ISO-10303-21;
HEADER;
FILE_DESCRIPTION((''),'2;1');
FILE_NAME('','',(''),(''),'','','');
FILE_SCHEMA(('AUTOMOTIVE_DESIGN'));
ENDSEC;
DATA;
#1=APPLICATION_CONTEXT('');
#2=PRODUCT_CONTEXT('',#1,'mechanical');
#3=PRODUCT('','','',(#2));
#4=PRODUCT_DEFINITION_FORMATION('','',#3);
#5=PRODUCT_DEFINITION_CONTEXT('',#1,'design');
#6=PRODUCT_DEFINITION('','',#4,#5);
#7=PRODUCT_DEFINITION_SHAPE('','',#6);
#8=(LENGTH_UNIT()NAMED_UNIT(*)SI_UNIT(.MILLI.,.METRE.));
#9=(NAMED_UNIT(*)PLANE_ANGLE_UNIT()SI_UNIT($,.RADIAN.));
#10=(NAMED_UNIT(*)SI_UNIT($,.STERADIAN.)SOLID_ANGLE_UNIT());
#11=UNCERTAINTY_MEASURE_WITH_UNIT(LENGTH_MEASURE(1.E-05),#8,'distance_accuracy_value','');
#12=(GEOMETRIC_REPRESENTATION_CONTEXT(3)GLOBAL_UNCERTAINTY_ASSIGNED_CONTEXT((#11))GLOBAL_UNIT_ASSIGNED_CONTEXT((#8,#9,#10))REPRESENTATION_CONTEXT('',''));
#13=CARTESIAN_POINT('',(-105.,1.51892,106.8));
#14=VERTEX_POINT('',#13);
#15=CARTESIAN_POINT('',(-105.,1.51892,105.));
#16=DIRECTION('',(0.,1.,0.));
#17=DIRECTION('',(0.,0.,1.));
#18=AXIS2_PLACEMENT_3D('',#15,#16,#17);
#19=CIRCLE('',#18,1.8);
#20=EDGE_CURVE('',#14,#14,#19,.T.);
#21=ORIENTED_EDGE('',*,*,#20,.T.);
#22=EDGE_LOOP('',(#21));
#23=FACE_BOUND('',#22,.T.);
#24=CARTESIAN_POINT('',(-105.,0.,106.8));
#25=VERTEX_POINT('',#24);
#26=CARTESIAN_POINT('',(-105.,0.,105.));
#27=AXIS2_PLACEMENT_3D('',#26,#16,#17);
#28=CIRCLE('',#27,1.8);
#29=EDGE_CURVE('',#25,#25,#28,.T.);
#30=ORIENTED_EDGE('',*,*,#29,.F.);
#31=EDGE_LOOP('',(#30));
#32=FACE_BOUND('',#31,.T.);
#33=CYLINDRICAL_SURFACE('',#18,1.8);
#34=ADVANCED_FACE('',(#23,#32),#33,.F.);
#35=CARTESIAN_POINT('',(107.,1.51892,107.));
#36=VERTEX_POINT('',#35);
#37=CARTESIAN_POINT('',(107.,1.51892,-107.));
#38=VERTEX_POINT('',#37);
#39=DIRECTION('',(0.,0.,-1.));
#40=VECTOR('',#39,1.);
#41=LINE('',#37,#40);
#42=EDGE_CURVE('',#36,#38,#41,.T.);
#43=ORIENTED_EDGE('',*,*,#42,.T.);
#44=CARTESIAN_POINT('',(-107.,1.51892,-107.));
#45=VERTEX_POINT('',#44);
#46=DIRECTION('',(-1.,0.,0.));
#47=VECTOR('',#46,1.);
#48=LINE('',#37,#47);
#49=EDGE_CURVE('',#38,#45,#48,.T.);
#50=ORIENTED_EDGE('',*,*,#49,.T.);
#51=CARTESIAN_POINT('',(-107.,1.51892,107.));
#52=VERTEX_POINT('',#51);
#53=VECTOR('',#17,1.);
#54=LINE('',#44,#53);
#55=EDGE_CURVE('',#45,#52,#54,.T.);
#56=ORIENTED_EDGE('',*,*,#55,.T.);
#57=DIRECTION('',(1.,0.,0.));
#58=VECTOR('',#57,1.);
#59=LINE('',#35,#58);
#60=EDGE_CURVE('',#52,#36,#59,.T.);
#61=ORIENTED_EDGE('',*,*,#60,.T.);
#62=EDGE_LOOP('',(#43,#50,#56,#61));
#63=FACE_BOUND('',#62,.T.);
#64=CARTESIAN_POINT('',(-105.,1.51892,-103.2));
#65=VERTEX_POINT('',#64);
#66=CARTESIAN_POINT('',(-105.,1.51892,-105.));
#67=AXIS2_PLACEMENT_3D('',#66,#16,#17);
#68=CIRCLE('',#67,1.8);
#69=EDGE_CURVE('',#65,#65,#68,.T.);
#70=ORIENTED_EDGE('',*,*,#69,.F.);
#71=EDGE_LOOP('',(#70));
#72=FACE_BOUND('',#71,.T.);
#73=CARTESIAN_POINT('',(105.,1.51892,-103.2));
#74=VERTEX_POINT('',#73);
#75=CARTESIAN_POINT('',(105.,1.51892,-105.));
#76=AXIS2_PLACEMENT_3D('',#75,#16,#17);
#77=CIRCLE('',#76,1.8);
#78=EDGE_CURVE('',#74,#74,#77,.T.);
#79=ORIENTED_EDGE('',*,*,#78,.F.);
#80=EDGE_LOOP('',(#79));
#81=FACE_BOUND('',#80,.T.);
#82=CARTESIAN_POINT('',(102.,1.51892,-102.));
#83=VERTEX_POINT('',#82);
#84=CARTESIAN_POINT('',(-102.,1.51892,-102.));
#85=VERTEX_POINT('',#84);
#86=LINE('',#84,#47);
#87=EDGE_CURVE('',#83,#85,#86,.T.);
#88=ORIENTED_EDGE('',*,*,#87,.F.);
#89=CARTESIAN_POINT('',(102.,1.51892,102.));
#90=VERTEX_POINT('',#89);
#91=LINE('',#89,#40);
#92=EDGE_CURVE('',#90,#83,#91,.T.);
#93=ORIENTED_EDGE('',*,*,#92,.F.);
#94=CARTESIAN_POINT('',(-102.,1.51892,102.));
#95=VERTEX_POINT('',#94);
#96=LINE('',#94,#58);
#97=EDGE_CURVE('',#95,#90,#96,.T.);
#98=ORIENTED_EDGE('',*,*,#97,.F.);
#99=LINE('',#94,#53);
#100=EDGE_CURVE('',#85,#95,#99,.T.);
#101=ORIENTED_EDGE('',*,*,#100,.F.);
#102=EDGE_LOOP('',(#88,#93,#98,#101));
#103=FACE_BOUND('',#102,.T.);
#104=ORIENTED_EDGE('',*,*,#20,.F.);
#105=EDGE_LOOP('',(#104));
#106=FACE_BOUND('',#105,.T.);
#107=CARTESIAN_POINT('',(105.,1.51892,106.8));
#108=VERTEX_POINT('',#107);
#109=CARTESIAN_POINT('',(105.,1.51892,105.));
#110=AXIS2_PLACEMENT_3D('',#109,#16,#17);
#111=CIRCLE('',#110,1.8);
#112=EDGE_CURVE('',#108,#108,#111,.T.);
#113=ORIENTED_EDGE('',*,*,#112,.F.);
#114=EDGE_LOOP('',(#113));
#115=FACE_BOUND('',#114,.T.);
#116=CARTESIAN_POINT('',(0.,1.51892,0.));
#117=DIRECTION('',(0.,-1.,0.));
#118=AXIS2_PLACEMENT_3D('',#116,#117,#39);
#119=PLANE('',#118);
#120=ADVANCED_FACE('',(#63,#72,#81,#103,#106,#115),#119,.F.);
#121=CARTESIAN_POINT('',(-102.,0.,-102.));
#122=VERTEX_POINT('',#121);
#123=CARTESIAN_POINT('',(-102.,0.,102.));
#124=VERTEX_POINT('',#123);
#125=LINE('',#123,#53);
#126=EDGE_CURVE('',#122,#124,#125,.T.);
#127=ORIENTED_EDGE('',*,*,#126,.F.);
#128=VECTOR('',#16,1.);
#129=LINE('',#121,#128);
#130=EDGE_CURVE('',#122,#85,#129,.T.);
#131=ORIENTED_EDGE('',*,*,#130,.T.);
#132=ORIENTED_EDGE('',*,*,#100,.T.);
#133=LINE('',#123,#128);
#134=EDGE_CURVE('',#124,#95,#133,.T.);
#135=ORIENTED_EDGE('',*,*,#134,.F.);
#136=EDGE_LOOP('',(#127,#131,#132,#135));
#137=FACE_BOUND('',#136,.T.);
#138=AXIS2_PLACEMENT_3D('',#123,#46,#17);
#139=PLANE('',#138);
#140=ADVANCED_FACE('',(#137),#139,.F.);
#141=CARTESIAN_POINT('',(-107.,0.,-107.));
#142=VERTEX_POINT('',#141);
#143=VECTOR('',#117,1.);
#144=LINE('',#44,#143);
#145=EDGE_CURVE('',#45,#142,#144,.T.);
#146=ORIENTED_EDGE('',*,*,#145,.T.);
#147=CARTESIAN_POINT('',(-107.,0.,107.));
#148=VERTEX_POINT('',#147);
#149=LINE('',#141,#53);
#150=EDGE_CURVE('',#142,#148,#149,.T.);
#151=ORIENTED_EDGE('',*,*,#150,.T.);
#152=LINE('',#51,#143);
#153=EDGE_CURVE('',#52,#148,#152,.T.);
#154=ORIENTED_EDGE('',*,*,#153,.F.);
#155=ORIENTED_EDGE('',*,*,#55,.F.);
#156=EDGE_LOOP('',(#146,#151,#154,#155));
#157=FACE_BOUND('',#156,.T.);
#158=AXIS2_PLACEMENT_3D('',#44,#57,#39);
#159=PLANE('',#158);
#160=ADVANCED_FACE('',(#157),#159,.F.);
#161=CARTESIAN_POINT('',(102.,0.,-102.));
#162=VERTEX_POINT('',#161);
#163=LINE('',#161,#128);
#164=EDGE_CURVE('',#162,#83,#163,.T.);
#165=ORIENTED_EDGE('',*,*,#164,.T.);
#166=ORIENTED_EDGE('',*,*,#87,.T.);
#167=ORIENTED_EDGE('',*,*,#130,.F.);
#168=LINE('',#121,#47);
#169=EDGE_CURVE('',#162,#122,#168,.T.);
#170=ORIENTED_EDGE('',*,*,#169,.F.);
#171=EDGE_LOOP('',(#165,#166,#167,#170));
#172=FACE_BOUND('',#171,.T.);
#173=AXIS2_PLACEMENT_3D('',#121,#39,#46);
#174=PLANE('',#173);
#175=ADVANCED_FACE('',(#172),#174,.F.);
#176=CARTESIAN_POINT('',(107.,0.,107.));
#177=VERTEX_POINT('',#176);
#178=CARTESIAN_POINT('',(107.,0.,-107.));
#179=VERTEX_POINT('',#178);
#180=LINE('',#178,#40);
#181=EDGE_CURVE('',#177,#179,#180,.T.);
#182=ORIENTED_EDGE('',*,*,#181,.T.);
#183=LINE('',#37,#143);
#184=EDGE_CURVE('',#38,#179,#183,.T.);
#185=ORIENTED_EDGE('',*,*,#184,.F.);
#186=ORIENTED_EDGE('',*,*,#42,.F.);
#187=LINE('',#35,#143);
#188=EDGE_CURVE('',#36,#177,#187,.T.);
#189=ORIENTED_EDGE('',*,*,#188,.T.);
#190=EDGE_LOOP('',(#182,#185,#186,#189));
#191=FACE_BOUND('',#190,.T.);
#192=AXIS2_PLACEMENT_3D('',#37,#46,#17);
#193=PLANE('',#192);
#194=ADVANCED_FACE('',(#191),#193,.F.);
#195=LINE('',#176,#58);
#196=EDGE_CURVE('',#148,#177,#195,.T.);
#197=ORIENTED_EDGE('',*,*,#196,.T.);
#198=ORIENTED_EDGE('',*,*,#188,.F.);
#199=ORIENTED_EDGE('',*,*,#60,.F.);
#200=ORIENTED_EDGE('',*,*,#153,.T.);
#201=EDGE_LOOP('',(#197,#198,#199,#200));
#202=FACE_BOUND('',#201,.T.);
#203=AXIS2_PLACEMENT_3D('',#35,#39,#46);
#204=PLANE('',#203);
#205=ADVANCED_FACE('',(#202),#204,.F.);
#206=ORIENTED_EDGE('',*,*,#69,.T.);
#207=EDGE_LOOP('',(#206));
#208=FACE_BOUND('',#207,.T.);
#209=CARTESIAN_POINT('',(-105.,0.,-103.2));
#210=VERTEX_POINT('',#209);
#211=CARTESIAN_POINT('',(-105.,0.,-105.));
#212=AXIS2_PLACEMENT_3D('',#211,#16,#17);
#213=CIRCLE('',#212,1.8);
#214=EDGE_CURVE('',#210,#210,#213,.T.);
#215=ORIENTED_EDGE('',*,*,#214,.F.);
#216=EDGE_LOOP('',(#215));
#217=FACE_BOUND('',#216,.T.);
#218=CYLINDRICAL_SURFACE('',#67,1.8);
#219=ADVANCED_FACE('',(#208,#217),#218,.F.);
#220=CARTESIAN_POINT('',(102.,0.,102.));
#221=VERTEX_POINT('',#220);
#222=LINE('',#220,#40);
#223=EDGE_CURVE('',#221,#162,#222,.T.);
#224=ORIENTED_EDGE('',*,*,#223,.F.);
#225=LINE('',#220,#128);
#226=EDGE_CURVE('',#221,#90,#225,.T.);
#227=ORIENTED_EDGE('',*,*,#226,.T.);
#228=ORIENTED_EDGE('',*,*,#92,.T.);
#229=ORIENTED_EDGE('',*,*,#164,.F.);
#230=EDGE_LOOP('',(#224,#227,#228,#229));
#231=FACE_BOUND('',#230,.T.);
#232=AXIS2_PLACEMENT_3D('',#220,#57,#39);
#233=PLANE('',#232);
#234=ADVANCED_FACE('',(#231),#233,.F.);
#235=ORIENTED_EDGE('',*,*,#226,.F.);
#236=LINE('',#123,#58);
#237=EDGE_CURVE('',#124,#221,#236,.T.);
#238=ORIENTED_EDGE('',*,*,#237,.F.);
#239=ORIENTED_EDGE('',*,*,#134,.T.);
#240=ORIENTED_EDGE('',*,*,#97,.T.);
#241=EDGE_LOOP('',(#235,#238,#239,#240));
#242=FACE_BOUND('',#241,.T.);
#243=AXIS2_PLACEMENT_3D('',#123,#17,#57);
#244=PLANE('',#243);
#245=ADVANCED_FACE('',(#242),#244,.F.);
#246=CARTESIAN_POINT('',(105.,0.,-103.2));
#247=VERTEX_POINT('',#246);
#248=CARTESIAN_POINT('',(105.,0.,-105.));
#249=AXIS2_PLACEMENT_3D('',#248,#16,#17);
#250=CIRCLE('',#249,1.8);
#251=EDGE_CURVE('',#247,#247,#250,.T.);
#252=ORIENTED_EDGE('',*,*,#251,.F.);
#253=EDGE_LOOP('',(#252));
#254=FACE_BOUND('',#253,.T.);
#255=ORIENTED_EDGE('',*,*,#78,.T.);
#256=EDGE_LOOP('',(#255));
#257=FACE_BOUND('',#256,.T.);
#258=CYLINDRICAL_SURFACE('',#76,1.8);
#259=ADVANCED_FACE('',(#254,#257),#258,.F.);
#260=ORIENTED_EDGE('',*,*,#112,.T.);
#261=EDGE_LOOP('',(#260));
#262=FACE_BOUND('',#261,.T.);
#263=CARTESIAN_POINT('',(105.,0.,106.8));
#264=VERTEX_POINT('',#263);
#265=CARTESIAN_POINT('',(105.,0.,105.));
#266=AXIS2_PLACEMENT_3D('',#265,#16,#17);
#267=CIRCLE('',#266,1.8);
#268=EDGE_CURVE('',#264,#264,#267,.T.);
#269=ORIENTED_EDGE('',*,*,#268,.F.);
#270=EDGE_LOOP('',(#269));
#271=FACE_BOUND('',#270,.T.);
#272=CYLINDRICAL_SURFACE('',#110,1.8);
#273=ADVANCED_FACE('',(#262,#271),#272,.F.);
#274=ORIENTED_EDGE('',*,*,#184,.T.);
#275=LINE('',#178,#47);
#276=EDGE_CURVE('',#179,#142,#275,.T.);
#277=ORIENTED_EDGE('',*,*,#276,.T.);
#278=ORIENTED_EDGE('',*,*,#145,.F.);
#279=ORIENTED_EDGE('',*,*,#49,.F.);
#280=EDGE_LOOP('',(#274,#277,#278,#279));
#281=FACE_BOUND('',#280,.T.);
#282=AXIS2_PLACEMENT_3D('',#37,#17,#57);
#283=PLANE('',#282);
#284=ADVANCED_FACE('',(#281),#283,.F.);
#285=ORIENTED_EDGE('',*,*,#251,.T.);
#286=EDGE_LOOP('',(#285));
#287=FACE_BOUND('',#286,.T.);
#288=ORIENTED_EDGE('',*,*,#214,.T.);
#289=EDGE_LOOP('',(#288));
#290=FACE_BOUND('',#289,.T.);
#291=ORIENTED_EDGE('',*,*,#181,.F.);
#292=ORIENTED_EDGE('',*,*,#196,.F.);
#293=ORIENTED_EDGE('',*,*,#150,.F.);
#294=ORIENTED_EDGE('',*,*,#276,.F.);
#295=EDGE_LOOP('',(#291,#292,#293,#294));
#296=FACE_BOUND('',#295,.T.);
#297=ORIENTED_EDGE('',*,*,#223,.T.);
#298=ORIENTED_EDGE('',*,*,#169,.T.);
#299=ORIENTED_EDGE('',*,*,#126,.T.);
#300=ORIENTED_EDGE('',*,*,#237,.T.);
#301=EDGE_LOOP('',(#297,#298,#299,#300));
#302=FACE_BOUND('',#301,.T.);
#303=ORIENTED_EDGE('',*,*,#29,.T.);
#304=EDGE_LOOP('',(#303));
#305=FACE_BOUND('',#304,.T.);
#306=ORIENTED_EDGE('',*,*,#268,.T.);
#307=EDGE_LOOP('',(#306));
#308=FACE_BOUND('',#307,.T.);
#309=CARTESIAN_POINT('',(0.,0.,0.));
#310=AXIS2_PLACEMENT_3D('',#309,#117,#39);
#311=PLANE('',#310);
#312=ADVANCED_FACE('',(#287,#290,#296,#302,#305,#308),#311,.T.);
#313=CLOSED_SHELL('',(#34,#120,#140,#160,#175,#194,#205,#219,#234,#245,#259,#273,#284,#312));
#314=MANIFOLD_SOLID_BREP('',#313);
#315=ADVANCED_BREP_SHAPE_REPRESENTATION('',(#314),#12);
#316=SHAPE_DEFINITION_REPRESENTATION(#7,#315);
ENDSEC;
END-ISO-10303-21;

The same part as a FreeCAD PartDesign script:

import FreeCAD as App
import Part
import Sketcher
from FreeCAD import Vector
Q = App.Units.Quantity


def add_polygon(sketch, points):
    """Adds a closed chain of lines whose ends are joined by coincident constraints."""
    first, n = sketch.GeometryCount, len(points)
    for a, b in zip(points, points[1:] + points[:1]):
        sketch.addGeometry(Part.LineSegment(App.Vector(*a, 0), App.Vector(*b, 0)), False)
    for i in range(n):
        sketch.addConstraint(Sketcher.Constraint("Coincident", first + i, 2, first + (i + 1) % n, 1))

doc = App.newDocument("Part")
params = doc.addObject("Spreadsheet::Sheet", "Params")
for row, (alias, value) in enumerate([
    ("sketch1_width", "214 mm"),
    ("pad1_length", "1.51892 mm"),
    ("sketch2_width", "204 mm"),
    ("pocket1_length", "1.51892 mm"),
    ("sketch3_diameter", "3.6 mm"),
    ("hole_diameter", "3.6 mm"),
], start=1):
    params.set(f"A{row}", alias)
    params.set(f"B{row}", "=" + value)
    params.setAlias(f"B{row}", alias)

body = doc.addObject("PartDesign::Body", "Body")

# Sketch on XZ plane
sketch1 = body.newObject("Sketcher::SketchObject", "Sketch")
sketch1.AttachmentSupport = (doc.getObject("XZ_Plane"), [""])
sketch1.MapMode = "FlatFace"
add_polygon(sketch1, [(-107, -107), (-107, 107), (107, 107), (107, -107)])  # lines 0-3
sketch1.addConstraint(Sketcher.Constraint("Vertical", 0))
sketch1.addConstraint(Sketcher.Constraint("Horizontal", 1))
sketch1.addConstraint(Sketcher.Constraint("Vertical", 2))
sketch1.addConstraint(Sketcher.Constraint("Horizontal", 3))
sketch1.addConstraint(Sketcher.Constraint("Symmetric", 0, 2, 2, 2, -1, 1))
sketch1.addConstraint(Sketcher.Constraint("Equal", 3, 0))
sketch1.addConstraint(Sketcher.Constraint("DistanceX", 1, 1, 1, 2, Q("214 mm")))
sketch1.setExpression("Constraints[10]", "Params.sketch1_width")
pad1 = body.newObject("PartDesign::Pad", "Pad")
pad1.Profile = sketch1
pad1.setExpression("Length", "Params.pad1_length")
pad1.Reversed = True

# Sketch on XZ plane
sketch2 = body.newObject("Sketcher::SketchObject", "Sketch001")
sketch2.AttachmentSupport = (doc.getObject("XZ_Plane"), [""])
sketch2.MapMode = "FlatFace"
sketch2.AttachmentOffset = App.Placement(Vector(0, 0, -1.51892), App.Rotation())
add_polygon(sketch2, [(-102, -102), (-102, 102), (102, 102), (102, -102)])  # lines 0-3
sketch2.addConstraint(Sketcher.Constraint("Vertical", 0))
sketch2.addConstraint(Sketcher.Constraint("Horizontal", 1))
sketch2.addConstraint(Sketcher.Constraint("Vertical", 2))
sketch2.addConstraint(Sketcher.Constraint("Horizontal", 3))
sketch2.addConstraint(Sketcher.Constraint("Symmetric", 0, 2, 2, 2, -1, 1))
sketch2.addConstraint(Sketcher.Constraint("Equal", 3, 0))
sketch2.addConstraint(Sketcher.Constraint("DistanceX", 1, 1, 1, 2, Q("204 mm")))
sketch2.setExpression("Constraints[10]", "Params.sketch2_width")
pocket1 = body.newObject("PartDesign::Pocket", "Pocket")
pocket1.Profile = sketch2
pocket1.setExpression("Length", "Params.pocket1_length")
pocket1.Reversed = True

# Sketch on XZ plane
sketch3 = body.newObject("Sketcher::SketchObject", "Sketch002")
sketch3.AttachmentSupport = (doc.getObject("XZ_Plane"), [""])
sketch3.MapMode = "FlatFace"
sketch3.AttachmentOffset = App.Placement(Vector(0, 0, -1.51892), App.Rotation())
sketch3.addGeometry(Part.Circle(Vector(-105, -105, 0), Vector(0, 0, 1), 1.8), False)
sketch3.addGeometry(Part.Circle(Vector(105, -105, 0), Vector(0, 0, 1), 1.8), False)
sketch3.addGeometry(Part.Circle(Vector(105, 105, 0), Vector(0, 0, 1), 1.8), False)
sketch3.addGeometry(Part.Circle(Vector(-105, 105, 0), Vector(0, 0, 1), 1.8), False)
sketch3.addConstraint(Sketcher.Constraint("Equal", 0, 1))
sketch3.addConstraint(Sketcher.Constraint("Equal", 1, 2))
sketch3.addConstraint(Sketcher.Constraint("Equal", 2, 3))
sketch3.addConstraint(Sketcher.Constraint("Symmetric", 0, 3, 2, 3, -1, 1))
sketch3.addConstraint(Sketcher.Constraint("Symmetric", 1, 3, 3, 3, -1, 1))
sketch3.addConstraint(Sketcher.Constraint("Symmetric", 0, 3, 1, 3, -2))
sketch3.addConstraint(Sketcher.Constraint("Diameter", 0, Q("3.6 mm")))
sketch3.addConstraint(Sketcher.Constraint("DistanceX", 0, 3, -1, 1, Q("105 mm")))
sketch3.addConstraint(Sketcher.Constraint("DistanceY", 0, 3, -1, 1, Q("105 mm")))
sketch3.setExpression("Constraints[6]", "Params.sketch3_diameter")
doc.recompute()
hole = body.newObject("PartDesign::Hole", "Hole")
hole.Profile = sketch3
hole.ThreadType = "None"
hole.setExpression("Diameter", "Params.hole_diameter")
hole.DepthType = "ThroughAll"
hole.Reversed = True

doc.recompute()
